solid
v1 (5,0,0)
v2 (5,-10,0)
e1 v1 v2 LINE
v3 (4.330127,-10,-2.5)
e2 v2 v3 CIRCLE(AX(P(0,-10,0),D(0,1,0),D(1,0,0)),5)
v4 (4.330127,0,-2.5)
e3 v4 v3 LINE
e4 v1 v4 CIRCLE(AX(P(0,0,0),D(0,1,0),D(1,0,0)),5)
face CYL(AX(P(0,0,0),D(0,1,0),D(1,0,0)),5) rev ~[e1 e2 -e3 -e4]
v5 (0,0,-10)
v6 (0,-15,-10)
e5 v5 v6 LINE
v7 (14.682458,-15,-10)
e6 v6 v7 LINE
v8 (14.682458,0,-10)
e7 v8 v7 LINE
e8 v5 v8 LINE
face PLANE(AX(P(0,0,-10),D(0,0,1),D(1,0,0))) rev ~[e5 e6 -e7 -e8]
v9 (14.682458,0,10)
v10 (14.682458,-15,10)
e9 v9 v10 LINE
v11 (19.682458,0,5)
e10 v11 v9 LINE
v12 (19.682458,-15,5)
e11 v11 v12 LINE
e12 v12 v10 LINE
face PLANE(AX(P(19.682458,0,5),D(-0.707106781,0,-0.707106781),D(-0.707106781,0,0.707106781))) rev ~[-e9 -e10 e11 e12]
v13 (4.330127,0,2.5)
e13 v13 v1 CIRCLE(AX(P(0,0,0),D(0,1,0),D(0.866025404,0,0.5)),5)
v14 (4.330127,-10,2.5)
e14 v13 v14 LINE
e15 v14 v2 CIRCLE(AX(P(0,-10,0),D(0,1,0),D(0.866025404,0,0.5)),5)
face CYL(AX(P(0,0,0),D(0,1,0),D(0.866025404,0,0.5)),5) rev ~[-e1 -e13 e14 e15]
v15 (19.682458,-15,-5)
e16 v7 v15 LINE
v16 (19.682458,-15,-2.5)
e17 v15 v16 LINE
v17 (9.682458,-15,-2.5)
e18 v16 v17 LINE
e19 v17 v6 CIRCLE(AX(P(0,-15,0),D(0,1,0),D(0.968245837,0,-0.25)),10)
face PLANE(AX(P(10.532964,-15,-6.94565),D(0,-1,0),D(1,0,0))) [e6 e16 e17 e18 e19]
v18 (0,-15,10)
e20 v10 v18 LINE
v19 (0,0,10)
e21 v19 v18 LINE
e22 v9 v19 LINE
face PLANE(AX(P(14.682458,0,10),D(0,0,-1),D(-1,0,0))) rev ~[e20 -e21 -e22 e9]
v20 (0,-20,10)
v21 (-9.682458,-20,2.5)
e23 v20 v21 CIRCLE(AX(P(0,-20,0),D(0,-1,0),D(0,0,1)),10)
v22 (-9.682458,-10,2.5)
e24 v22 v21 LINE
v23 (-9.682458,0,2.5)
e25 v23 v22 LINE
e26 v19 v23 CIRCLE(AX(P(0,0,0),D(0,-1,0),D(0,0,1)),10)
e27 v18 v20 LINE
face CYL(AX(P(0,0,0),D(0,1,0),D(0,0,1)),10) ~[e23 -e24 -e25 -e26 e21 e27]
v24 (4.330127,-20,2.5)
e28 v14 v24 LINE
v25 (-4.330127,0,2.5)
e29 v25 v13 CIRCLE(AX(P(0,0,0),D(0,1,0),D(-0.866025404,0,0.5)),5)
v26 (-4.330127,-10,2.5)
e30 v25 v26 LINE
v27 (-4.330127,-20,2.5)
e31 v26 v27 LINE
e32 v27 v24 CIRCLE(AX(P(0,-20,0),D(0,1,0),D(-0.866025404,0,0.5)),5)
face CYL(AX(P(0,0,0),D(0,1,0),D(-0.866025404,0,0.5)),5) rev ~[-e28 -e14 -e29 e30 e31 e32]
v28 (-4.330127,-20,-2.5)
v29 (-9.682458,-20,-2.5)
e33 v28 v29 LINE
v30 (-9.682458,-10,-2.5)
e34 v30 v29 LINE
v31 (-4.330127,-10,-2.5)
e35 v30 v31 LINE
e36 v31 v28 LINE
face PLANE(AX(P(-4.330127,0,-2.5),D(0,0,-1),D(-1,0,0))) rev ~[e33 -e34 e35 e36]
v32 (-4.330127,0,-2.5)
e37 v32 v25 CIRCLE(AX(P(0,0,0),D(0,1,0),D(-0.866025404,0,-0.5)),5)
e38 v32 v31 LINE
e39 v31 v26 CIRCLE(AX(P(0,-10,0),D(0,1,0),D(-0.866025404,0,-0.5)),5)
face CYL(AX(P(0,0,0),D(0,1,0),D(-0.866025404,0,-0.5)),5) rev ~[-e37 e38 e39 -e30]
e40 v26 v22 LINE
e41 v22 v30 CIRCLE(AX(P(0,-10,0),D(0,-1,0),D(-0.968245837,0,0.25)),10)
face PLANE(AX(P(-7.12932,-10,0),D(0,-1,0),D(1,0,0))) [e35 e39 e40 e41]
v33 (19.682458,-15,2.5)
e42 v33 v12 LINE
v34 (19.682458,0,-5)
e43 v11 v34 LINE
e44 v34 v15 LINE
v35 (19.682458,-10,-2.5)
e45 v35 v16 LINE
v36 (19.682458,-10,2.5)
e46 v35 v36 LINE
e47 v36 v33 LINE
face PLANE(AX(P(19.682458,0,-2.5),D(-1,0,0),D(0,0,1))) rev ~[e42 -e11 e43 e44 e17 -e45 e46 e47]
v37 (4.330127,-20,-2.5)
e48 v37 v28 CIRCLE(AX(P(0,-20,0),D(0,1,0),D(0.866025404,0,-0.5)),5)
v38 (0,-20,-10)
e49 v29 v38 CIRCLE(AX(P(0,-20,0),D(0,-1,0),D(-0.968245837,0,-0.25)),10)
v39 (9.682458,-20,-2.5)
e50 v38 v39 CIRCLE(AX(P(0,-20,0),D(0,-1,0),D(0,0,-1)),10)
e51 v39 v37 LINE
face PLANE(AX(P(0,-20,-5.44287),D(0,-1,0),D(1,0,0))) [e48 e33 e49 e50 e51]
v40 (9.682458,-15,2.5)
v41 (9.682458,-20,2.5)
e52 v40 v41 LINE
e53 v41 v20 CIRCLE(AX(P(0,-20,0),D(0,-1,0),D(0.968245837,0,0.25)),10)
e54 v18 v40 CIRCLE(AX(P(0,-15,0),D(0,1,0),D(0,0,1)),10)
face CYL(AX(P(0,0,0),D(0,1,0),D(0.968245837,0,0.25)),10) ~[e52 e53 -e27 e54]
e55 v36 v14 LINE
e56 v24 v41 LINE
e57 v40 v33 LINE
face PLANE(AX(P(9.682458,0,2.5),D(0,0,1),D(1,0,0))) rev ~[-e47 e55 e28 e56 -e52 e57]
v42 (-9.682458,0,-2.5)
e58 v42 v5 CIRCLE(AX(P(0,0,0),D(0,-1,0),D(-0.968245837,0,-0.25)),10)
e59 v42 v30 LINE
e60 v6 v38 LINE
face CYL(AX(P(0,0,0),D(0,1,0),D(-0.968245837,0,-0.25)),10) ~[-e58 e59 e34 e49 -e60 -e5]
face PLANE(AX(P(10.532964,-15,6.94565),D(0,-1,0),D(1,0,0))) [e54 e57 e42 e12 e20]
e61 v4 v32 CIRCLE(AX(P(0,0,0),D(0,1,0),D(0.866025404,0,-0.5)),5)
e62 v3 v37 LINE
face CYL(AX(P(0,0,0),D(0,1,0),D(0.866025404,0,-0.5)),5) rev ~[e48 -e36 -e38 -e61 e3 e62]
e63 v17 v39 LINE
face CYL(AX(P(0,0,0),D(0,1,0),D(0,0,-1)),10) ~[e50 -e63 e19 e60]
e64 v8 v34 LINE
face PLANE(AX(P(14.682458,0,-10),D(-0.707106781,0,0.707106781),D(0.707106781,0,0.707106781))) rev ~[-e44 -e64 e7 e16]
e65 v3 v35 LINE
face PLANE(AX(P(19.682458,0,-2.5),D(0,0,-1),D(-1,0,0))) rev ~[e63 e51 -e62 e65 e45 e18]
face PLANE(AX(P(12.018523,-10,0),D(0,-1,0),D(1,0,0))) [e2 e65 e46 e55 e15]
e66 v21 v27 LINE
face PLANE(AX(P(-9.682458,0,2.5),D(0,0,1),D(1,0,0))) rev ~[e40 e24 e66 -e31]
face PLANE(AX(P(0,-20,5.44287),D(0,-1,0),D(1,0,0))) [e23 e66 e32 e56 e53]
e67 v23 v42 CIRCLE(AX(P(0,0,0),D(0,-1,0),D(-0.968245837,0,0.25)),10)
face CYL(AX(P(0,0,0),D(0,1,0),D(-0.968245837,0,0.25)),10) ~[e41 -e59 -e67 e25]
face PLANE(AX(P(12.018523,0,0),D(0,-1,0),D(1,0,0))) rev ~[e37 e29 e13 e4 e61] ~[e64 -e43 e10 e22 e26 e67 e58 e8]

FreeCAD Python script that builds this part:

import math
import FreeCAD as App
import Part
import Sketcher

V = App.Vector
Q = App.Units.Quantity

doc = App.newDocument("Part")
params = doc.addObject("Spreadsheet::Sheet", "Params")
for row, (alias, value) in enumerate([
    ("sketch1_radius", "5 mm"),
    ("sketch1_radius2", "10 mm"),
    ("pad1_length", "20 mm"),
    ("sketch2_radius", "10 mm"),
    ("sketch2_width", "10 mm"),
    ("sketch2_height", "2.5 mm"),
    ("pad2_length", "15 mm"),
    ("sketch3_radius", "5 mm"),
    ("sketch3_radius2", "10 mm"),
    ("pad3_length", "20 mm"),
    ("sketch4_radius", "10 mm"),
    ("sketch4_width", "10 mm"),
    ("sketch4_height", "2.5 mm"),
    ("pad4_length", "15 mm"),
    ("sketch5_radius", "5 mm"),
    ("sketch5_radius2", "10 mm"),
    ("sketch5_height", "5 mm"),
    ("pad5_length", "10 mm"),
], start=1):
    params.set(f"A{row}", alias)
    params.set(f"B{row}", "=" + value)
    params.setAlias(f"B{row}", alias)

body = doc.addObject("PartDesign::Body", "Body")

sketch1 = body.newObject("Sketcher::SketchObject", "Sketch")
sketch1.AttachmentSupport = (doc.getObject("XZ_Plane"), [""])
sketch1.MapMode = "FlatFace"
sketch1.addGeometry([
    Part.ArcOfCircle(Part.Circle(V(0, 0, 0), V(0, 0, 1), 5), math.radians(30), math.radians(150)),
    Part.LineSegment(V(4, 2, 0), V(10, 2, 0)),
    Part.ArcOfCircle(Part.Circle(V(0, 0, 0), V(0, 0, 1), 10), math.radians(14), math.radians(90)),
    Part.ArcOfCircle(Part.Circle(V(0, 0, 0), V(0, 0, 1), 10), math.radians(90), math.radians(166)),
    Part.LineSegment(V(-10, 2, 0), V(-4, 2, 0)),
], False)
sketch1.addConstraint([
    Sketcher.Constraint("Coincident", 0, 1, 1, 1),
    Sketcher.Constraint("Coincident", 1, 2, 2, 1),
    Sketcher.Constraint("Tangent", 2, 2, 3, 1),
    Sketcher.Constraint("Coincident", 3, 2, 4, 1),
    Sketcher.Constraint("Coincident", 4, 2, 0, 2),
    Sketcher.Constraint("Horizontal", 1),
    Sketcher.Constraint("Horizontal", 4),
    Sketcher.Constraint("Coincident", 0, 3, -1, 1),
    Sketcher.Constraint("Coincident", 2, 3, -1, 1),
    Sketcher.Constraint("Equal", 2, 3),
    Sketcher.Constraint("PointOnObject", 2, 2, -2),
    Sketcher.Constraint("Horizontal", 1, 2, 3, 2),
    Sketcher.Constraint("Radius", 0, 5.0),
    Sketcher.Constraint("Radius", 2, 10.0),
    Sketcher.Constraint("DistanceY", -1, 1, 0, 1, 2.5),
])
sketch1.setExpression("Constraints[12]", "Params.sketch1_radius")
sketch1.setExpression("Constraints[13]", "Params.sketch1_radius2")
pad1 = body.newObject("PartDesign::Pad", "Pad")
pad1.Profile = sketch1
pad1.setExpression("Length", "Params.pad1_length")

sketch2 = body.newObject("Sketcher::SketchObject", "Sketch001")
sketch2.AttachmentSupport = (doc.getObject("XZ_Plane"), [""])
sketch2.MapMode = "FlatFace"
sketch2.addGeometry([
    Part.ArcOfCircle(Part.Circle(V(0, 0, 0), V(0, 0, 1), 10), math.radians(14), math.radians(90)),
    Part.LineSegment(V(9.7, 2.5, 0), V(19.7, 2.5, 0)),
    Part.LineSegment(V(19.7, 2.5, 0), V(19.7, 5, 0)),
    Part.LineSegment(V(19.7, 5, 0), V(14.7, 10, 0)),
    Part.LineSegment(V(14.7, 10, 0), V(0, 10, 0)),
], False)
sketch2.addConstraint([
    Sketcher.Constraint("Coincident", 0, 1, 1, 1),
    Sketcher.Constraint("Coincident", 1, 2, 2, 1),
    Sketcher.Constraint("Coincident", 2, 2, 3, 1),
    Sketcher.Constraint("Coincident", 3, 2, 4, 1),
    Sketcher.Constraint("Tangent", 4, 2, 0, 2),
    Sketcher.Constraint("Horizontal", 1),
    Sketcher.Constraint("Vertical", 2),
    Sketcher.Constraint("Horizontal", 4),
    Sketcher.Constraint("Coincident", 0, 3, -1, 1),
    Sketcher.Constraint("Radius", 0, 10.0),
    Sketcher.Constraint("DistanceX", 1, 1, 1, 2, 10.0),
    Sketcher.Constraint("Angle", 3, Q("135 deg")),
    Sketcher.Constraint("DistanceY", 2, 1, 2, 2, 2.5),
    Sketcher.Constraint("DistanceY", -1, 1, 2, 2, 5.0),
])
sketch2.setExpression("Constraints[9]", "Params.sketch2_radius")
sketch2.setExpression("Constraints[10]", "Params.sketch2_width")
sketch2.setExpression("Constraints[12]", "Params.sketch2_height")
pad2 = body.newObject("PartDesign::Pad", "Pad001")
pad2.Profile = sketch2
pad2.setExpression("Length", "Params.pad2_length")
body2 = doc.addObject("PartDesign::Body", "Body001")

sketch3 = body2.newObject("Sketcher::SketchObject", "Sketch002")
sketch3.AttachmentSupport = (doc.getObject("XZ_Plane001"), [""])
sketch3.MapMode = "FlatFace"
sketch3.addGeometry([
    Part.LineSegment(V(10, -2, 0), V(4, -2, 0)),
    Part.ArcOfCircle(Part.Circle(V(0, 0, 0), V(0, 0, 1), 5), math.radians(-150), math.radians(-30)),
    Part.LineSegment(V(-4, -2, 0), V(-10, -2, 0)),
    Part.ArcOfCircle(Part.Circle(V(0, 0, 0), V(0, 0, 1), 10), math.radians(-166), math.radians(-90)),
    Part.ArcOfCircle(Part.Circle(V(0, 0, 0), V(0, 0, 1), 10), math.radians(-90), math.radians(-14)),
], False)
sketch3.addConstraint([
    Sketcher.Constraint("Coincident", 0, 2, 1, 2),
    Sketcher.Constraint("Coincident", 1, 1, 2, 1),
    Sketcher.Constraint("Coincident", 2, 2, 3, 1),
    Sketcher.Constraint("Tangent", 3, 2, 4, 1),
    Sketcher.Constraint("Coincident", 4, 2, 0, 1),
    Sketcher.Constraint("Horizontal", 0),
    Sketcher.Constraint("Horizontal", 2),
    Sketcher.Constraint("Coincident", 1, 3, -1, 1),
    Sketcher.Constraint("Coincident", 3, 3, -1, 1),
    Sketcher.Constraint("Equal", 3, 4),
    Sketcher.Constraint("PointOnObject", 3, 2, -2),
    Sketcher.Constraint("Horizontal", 0, 2, 1, 1),
    Sketcher.Constraint("Radius", 1, 5.0),
    Sketcher.Constraint("Radius", 3, 10.0),
    Sketcher.Constraint("DistanceY", 0, 2, -1, 1, 2.5),
])
sketch3.setExpression("Constraints[12]", "Params.sketch3_radius")
sketch3.setExpression("Constraints[13]", "Params.sketch3_radius2")
pad3 = body2.newObject("PartDesign::Pad", "Pad002")
pad3.Profile = sketch3
pad3.setExpression("Length", "Params.pad3_length")

sketch4 = body2.newObject("Sketcher::SketchObject", "Sketch003")
sketch4.AttachmentSupport = (doc.getObject("XZ_Plane001"), [""])
sketch4.MapMode = "FlatFace"
sketch4.addGeometry([
    Part.LineSegment(V(19.7, -2.5, 0), V(9.7, -2.5, 0)),
    Part.ArcOfCircle(Part.Circle(V(0, 0, 0), V(0, 0, 1), 10), math.radians(-90), math.radians(-14)),
    Part.LineSegment(V(0, -10, 0), V(14.7, -10, 0)),
    Part.LineSegment(V(14.7, -10, 0), V(19.7, -5, 0)),
    Part.LineSegment(V(19.7, -5, 0), V(19.7, -2.5, 0)),
], False)
sketch4.addConstraint([
    Sketcher.Constraint("Coincident", 0, 2, 1, 2),
    Sketcher.Constraint("Tangent", 1, 1, 2, 1),
    Sketcher.Constraint("Coincident", 2, 2, 3, 1),
    Sketcher.Constraint("Coincident", 3, 2, 4, 1),
    Sketcher.Constraint("Coincident", 4, 2, 0, 1),
    Sketcher.Constraint("Horizontal", 0),
    Sketcher.Constraint("Horizontal", 2),
    Sketcher.Constraint("Vertical", 4),
    Sketcher.Constraint("Coincident", 1, 3, -1, 1),
    Sketcher.Constraint("Radius", 1, 10.0),
    Sketcher.Constraint("DistanceX", 0, 2, 0, 1, 10.0),
    Sketcher.Constraint("Angle", 3, Q("45 deg")),
    Sketcher.Constraint("DistanceY", 4, 1, 4, 2, 2.5),
    Sketcher.Constraint("DistanceY", 3, 2, -1, 1, 5.0),
])
sketch4.setExpression("Constraints[9]", "Params.sketch4_radius")
sketch4.setExpression("Constraints[10]", "Params.sketch4_width")
sketch4.setExpression("Constraints[12]", "Params.sketch4_height")
pad4 = body2.newObject("PartDesign::Pad", "Pad003")
pad4.Profile = sketch4
pad4.setExpression("Length", "Params.pad4_length")
body.AllowCompound = True
doc.recompute()

boolean = body.newObject("PartDesign::Boolean", "Boolean")
boolean.Type = "Fuse"
boolean.addObjects([body2])

sketch5 = body.newObject("Sketcher::SketchObject", "Sketch004")
sketch5.AttachmentSupport = (doc.getObject("XZ_Plane"), [""])
sketch5.MapMode = "FlatFace"
sketch5.addGeometry([
    Part.ArcOfCircle(Part.Circle(V(0, 0, 0), V(0, 0, 1), 5), math.radians(0), math.radians(30)),
    Part.ArcOfCircle(Part.Circle(V(0, 0, 0), V(0, 0, 1), 5), math.radians(-30), math.radians(0)),
    Part.LineSegment(V(4.3, -2.5, 0), V(19.7, -2.5, 0)),
    Part.LineSegment(V(19.7, -2.5, 0), V(19.7, 2.5, 0)),
    Part.LineSegment(V(19.7, 2.5, 0), V(4.3, 2.5, 0)),
    Part.ArcOfCircle(Part.Circle(V(0, 0, 0), V(0, 0, 1), 5), math.radians(150), math.radians(210)),
    Part.LineSegment(V(-4.3, 2.5, 0), V(-9.7, 2.5, 0)),
    Part.ArcOfCircle(Part.Circle(V(0, 0, 0), V(0, 0, 1), 10), math.radians(166), math.radians(194)),
    Part.LineSegment(V(-9.7, -2.5, 0), V(-4.3, -2.5, 0)),
], False)
sketch5.addConstraint([
    Sketcher.Constraint("Tangent", 0, 1, 1, 2),
    Sketcher.Constraint("Coincident", 1, 1, 2, 1),
    Sketcher.Constraint("Coincident", 2, 2, 3, 1),
    Sketcher.Constraint("Coincident", 3, 2, 4, 1),
    Sketcher.Constraint("Coincident", 4, 2, 0, 2),
    Sketcher.Constraint("Coincident", 5, 1, 6, 1),
    Sketcher.Constraint("Coincident", 6, 2, 7, 1),
    Sketcher.Constraint("Coincident", 7, 2, 8, 1),
    Sketcher.Constraint("Coincident", 8, 2, 5, 2),
    Sketcher.Constraint("Horizontal", 2),
    Sketcher.Constraint("Vertical", 3),
    Sketcher.Constraint("Horizontal", 4),
    Sketcher.Constraint("Horizontal", 6),
    Sketcher.Constraint("Horizontal", 8),
    Sketcher.Constraint("Coincident", 0, 3, -1, 1),
    Sketcher.Constraint("Coincident", 5, 3, -1, 1),
    Sketcher.Constraint("Coincident", 7, 3, -1, 1),
    Sketcher.Constraint("Equal", 0, 1),
    Sketcher.Constraint("Equal", 1, 5),
    Sketcher.Constraint("PointOnObject", 0, 1, -1),
    Sketcher.Constraint("Horizontal", 4, 2, 5, 1),
    Sketcher.Constraint("Horizontal", 2, 2, 7, 2),
    Sketcher.Constraint("Vertical", 1, 1, 4, 2),
    Sketcher.Constraint("Radius", 0, 5.0),
    Sketcher.Constraint("Radius", 7, 10.0),
    Sketcher.Constraint("DistanceY", 3, 1, 3, 2, 5.0),
    Sketcher.Constraint("DistanceX", 2, 1, 2, 2, 15.352331),
])
sketch5.setExpression("Constraints[23]", "Params.sketch5_radius")
sketch5.setExpression("Constraints[24]", "Params.sketch5_radius2")
sketch5.setExpression("Constraints[25]", "Params.sketch5_height")
pad5 = body.newObject("PartDesign::Pad", "Pad004")
pad5.Profile = sketch5
pad5.setExpression("Length", "Params.pad5_length")

doc.recompute()
